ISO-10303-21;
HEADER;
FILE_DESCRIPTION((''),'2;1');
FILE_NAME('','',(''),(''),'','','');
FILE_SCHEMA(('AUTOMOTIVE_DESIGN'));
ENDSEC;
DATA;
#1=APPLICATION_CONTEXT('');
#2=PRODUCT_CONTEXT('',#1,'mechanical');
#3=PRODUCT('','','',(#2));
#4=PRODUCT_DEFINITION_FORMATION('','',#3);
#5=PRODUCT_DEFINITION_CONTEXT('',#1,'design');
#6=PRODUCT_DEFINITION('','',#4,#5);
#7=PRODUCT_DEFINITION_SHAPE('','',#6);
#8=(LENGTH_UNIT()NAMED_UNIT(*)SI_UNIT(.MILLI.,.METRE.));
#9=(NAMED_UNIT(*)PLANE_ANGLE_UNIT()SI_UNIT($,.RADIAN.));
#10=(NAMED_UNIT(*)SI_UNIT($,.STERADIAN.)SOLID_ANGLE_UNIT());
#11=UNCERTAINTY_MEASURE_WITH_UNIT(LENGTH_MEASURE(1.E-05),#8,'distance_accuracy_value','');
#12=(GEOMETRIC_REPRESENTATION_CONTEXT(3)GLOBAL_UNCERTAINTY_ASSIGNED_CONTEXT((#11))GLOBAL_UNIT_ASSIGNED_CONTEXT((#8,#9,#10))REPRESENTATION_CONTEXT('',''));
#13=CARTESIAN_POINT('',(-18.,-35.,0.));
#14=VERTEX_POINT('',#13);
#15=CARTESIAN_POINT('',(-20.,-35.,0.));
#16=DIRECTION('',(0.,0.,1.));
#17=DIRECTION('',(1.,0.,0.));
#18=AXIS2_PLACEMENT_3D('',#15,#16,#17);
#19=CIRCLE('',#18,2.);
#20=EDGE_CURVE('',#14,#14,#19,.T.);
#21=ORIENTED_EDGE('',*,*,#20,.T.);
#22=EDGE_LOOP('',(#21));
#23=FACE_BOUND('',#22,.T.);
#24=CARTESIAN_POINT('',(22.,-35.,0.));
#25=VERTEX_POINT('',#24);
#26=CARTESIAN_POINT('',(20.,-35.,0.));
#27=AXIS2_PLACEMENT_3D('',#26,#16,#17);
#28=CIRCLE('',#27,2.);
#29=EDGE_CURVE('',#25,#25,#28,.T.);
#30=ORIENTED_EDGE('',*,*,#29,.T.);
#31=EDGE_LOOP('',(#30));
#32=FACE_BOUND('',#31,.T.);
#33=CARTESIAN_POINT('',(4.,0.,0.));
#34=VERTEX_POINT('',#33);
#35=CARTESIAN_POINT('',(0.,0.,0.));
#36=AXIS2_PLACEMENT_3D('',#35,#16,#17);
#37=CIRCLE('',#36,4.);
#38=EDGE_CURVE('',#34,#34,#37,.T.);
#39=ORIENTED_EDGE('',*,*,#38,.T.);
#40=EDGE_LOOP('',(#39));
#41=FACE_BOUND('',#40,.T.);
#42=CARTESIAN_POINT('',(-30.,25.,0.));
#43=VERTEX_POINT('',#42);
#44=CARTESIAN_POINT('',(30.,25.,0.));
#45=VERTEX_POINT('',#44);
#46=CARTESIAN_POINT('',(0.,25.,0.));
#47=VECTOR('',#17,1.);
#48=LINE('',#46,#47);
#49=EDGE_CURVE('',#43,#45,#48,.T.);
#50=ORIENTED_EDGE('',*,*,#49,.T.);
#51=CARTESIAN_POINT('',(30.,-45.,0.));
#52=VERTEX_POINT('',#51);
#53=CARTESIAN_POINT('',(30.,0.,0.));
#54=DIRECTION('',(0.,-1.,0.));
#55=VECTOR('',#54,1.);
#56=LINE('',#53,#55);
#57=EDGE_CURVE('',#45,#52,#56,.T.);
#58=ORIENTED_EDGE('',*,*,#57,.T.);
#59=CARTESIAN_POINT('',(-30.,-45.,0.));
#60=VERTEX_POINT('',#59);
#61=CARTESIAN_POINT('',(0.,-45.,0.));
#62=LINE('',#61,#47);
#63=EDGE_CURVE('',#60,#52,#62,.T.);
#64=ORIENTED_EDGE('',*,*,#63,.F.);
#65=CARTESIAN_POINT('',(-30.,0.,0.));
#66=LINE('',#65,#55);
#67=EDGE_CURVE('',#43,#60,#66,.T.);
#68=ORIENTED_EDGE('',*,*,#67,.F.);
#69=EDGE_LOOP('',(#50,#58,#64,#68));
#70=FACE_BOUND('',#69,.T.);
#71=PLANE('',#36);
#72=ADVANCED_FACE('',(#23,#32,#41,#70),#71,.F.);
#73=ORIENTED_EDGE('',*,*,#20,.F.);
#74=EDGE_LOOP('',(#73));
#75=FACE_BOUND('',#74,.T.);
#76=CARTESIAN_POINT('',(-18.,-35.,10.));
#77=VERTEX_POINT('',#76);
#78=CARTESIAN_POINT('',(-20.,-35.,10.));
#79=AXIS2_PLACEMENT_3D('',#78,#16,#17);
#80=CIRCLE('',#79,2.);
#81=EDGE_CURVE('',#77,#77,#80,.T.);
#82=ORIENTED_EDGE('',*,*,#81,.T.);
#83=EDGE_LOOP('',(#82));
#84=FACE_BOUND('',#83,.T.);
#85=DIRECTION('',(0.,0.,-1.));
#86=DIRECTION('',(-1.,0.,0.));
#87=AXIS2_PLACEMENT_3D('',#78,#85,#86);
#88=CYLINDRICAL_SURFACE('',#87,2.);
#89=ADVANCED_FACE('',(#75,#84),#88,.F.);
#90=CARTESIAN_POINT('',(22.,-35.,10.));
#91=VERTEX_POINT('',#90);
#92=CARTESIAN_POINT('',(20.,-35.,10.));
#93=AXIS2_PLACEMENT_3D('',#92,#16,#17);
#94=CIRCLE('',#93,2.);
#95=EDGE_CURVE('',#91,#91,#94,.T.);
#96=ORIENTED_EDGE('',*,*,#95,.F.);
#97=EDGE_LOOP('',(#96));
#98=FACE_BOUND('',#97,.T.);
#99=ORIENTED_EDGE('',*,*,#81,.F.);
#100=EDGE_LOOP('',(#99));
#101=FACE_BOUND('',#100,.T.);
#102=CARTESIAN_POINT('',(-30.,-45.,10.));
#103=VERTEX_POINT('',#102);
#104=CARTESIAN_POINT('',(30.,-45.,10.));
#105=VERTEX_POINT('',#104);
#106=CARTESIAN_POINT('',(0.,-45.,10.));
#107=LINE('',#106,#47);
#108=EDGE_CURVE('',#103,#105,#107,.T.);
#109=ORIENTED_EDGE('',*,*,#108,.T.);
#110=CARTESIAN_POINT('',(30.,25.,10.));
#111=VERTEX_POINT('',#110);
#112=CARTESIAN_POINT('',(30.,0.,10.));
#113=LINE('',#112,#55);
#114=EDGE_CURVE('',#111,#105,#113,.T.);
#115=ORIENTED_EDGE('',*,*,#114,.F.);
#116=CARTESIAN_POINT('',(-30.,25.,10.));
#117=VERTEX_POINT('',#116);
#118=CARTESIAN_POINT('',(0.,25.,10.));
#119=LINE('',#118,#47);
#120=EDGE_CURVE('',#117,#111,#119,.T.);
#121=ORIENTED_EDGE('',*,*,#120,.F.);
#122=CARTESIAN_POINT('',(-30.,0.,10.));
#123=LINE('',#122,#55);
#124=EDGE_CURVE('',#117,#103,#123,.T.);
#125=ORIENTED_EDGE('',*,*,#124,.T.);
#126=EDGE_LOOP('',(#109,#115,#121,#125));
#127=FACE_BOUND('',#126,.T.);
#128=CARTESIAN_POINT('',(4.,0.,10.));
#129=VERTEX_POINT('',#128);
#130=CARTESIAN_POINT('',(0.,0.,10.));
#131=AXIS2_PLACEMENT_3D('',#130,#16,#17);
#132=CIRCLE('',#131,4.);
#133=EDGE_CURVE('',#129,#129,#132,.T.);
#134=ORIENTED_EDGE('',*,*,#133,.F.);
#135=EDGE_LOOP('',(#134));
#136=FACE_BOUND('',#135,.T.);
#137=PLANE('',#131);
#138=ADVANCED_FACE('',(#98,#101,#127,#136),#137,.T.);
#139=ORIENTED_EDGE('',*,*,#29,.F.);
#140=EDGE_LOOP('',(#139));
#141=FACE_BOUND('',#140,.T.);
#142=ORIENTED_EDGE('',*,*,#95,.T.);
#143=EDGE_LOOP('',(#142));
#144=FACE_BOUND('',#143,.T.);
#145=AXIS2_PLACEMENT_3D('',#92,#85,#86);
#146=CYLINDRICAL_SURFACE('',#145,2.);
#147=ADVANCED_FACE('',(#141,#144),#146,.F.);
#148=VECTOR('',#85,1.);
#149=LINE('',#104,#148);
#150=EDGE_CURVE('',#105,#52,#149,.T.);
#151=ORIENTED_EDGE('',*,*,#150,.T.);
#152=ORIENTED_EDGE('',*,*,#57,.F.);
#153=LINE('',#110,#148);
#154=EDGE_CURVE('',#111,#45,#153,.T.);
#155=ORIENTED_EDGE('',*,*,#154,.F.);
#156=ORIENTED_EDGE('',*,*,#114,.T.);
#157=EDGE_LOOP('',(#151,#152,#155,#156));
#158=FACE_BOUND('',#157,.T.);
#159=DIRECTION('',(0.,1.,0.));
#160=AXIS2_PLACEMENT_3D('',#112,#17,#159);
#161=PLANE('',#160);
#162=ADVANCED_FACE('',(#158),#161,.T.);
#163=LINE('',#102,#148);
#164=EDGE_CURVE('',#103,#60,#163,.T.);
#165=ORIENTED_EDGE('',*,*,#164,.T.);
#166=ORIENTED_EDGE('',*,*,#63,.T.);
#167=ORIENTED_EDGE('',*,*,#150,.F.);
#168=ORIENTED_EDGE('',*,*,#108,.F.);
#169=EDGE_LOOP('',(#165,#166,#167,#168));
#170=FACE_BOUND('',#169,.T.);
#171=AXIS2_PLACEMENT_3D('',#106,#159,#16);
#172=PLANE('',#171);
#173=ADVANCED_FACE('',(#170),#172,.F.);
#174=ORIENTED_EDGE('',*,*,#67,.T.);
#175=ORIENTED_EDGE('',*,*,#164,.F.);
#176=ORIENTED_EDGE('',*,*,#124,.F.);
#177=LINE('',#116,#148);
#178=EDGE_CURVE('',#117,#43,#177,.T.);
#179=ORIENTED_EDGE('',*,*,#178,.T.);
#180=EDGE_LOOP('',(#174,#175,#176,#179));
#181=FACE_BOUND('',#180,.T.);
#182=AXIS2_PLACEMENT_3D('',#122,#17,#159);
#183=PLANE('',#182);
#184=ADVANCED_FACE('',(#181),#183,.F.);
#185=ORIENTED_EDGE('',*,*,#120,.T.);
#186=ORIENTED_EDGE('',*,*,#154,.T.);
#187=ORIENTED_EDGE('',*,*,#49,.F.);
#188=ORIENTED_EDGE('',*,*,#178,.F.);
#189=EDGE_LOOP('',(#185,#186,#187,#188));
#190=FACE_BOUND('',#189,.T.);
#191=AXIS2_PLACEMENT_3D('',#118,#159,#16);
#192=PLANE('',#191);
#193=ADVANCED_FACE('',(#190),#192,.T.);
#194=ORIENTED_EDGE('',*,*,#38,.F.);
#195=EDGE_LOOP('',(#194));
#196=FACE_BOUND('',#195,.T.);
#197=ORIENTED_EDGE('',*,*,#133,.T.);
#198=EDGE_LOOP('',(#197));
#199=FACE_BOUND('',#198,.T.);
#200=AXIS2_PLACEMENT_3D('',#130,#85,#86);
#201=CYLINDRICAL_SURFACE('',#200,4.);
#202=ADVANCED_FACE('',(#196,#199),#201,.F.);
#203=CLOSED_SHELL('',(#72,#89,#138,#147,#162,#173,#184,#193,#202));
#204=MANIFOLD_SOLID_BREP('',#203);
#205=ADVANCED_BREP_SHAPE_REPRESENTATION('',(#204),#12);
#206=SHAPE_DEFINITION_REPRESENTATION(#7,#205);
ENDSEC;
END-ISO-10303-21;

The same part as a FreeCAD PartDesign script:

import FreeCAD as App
import Part
import Sketcher
from FreeCAD import Vector
Q = App.Units.Quantity


def add_polygon(sketch, points):
    """Adds a closed chain of lines whose ends are joined by coincident constraints."""
    first, n = sketch.GeometryCount, len(points)
    for a, b in zip(points, points[1:] + points[:1]):
        sketch.addGeometry(Part.LineSegment(App.Vector(*a, 0), App.Vector(*b, 0)), False)
    for i in range(n):
        sketch.addConstraint(Sketcher.Constraint("Coincident", first + i, 2, first + (i + 1) % n, 1))

doc = App.newDocument("Part")
params = doc.addObject("Spreadsheet::Sheet", "Params")
for row, (alias, value) in enumerate([
    ("sketch1_diameter", "4 mm"),
    ("sketch1_diameter2", "8 mm"),
    ("sketch1_width", "60 mm"),
    ("sketch1_height", "70 mm"),
    ("pad1_length", "10 mm"),
], start=1):
    params.set(f"A{row}", alias)
    params.set(f"B{row}", "=" + value)
    params.setAlias(f"B{row}", alias)

body = doc.addObject("PartDesign::Body", "Body")

# Sketch on XY plane
sketch1 = doc.addObject("Sketcher::SketchObject", "Sketch")
body.addObject(sketch1)
sketch1.AttachmentSupport = (doc.XY_Plane, [""])
sketch1.MapMode = "FlatFace"
add_polygon(sketch1, [(-30, 25), (-30, -45), (30, -45), (30, 25)])  # lines 0-3
sketch1.addGeometry(Part.Circle(Vector(-20, -35, 0), Vector(0, 0, 1), 2), False)  # 4
sketch1.addGeometry(Part.Circle(Vector(20, -35, 0), Vector(0, 0, 1), 2), False)  # 5
sketch1.addGeometry(Part.Circle(Vector(0, 0, 0), Vector(0, 0, 1), 4), False)  # 6
sketch1.addConstraint([
    Sketcher.Constraint("Vertical", 0),
    Sketcher.Constraint("Horizontal", 1),
    Sketcher.Constraint("Vertical", 2),
    Sketcher.Constraint("Horizontal", 3),
    Sketcher.Constraint("Coincident", 6, 3, -1, 1),
    Sketcher.Constraint("Equal", 4, 5),
    Sketcher.Constraint("Symmetric", 4, 3, 5, 3, -2),
    Sketcher.Constraint("Diameter", 4, Q("4 mm")),
    Sketcher.Constraint("Diameter", 6, Q("8 mm")),
    Sketcher.Constraint("DistanceX", 1, 1, 1, 2, Q("60 mm")),
    Sketcher.Constraint("DistanceY", 0, 2, 0, 1, Q("70 mm")),
    Sketcher.Constraint("DistanceX", 4, 3, -1, 1, Q("20 mm")),
    Sketcher.Constraint("DistanceY", 4, 3, -1, 1, Q("35 mm")),
    Sketcher.Constraint("DistanceX", 0, 2, -1, 1, Q("30 mm")),
    Sketcher.Constraint("DistanceY", 0, 2, -1, 1, Q("45 mm")),
])
sketch1.setExpression("Constraints[11]", "Params.sketch1_diameter")
sketch1.setExpression("Constraints[12]", "Params.sketch1_diameter2")
sketch1.setExpression("Constraints[13]", "Params.sketch1_width")
sketch1.setExpression("Constraints[14]", "Params.sketch1_height")
pad1 = doc.addObject("PartDesign::Pad", "Pad")
body.addObject(pad1)
pad1.Profile = sketch1
pad1.setExpression("Length", "Params.pad1_length")

doc.recompute()
